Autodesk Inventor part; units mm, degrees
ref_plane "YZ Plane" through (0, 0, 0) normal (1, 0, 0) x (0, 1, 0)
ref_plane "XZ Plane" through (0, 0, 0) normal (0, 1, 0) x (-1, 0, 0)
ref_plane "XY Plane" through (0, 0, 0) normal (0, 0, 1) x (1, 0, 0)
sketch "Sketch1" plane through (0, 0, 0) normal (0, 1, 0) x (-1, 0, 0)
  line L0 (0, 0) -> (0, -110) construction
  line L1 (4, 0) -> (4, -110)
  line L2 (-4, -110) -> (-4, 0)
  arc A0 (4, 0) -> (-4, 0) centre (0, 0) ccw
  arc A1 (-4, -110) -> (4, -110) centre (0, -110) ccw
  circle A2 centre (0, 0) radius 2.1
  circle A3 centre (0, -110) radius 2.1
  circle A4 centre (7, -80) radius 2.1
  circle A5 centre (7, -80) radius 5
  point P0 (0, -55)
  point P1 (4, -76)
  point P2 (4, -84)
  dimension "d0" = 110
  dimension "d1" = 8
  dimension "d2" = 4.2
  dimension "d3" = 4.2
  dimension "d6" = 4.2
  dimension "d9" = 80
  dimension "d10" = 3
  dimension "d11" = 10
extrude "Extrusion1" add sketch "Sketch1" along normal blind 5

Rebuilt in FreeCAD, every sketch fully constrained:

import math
import FreeCAD as App
import Part
import Sketcher
Q = App.Units.Quantity

doc = App.newDocument("Part")
body = doc.addObject("PartDesign::Body", "Body")

# Sketch on XZ plane
sketch1 = doc.addObject("Sketcher::SketchObject", "Sketch")
body.addObject(sketch1)
sketch1.AttachmentSupport = (doc.XZ_Plane, [""])
sketch1.MapMode = "FlatFace"
sketch1.addGeometry([
    Part.LineSegment(App.Vector(-4, -76, 0), App.Vector(-4, 0, 0)),  # 0
    Part.ArcOfCircle(Part.Circle(App.Vector(0, 0, 0), App.Vector(0, 0, 1), 4), math.radians(0), math.radians(180)),  # 1
    Part.LineSegment(App.Vector(4, 0, 0), App.Vector(4, -110, 0)),  # 2
    Part.ArcOfCircle(Part.Circle(App.Vector(0, -110, 0), App.Vector(0, 0, 1), 4), math.radians(180), math.radians(360)),  # 3
    Part.LineSegment(App.Vector(-4, -110, 0), App.Vector(-4, -84, 0)),  # 4
    Part.ArcOfCircle(Part.Circle(App.Vector(-7, -80, 0), App.Vector(0, 0, 1), 5), math.radians(53.130102), math.radians(306.869898)),  # 5
    Part.Circle(App.Vector(0, -110, 0), App.Vector(0, 0, 1), 2.1),  # 6
    Part.Circle(App.Vector(0, 0, 0), App.Vector(0, 0, 1), 2.1),  # 7
    Part.Circle(App.Vector(-7, -80, 0), App.Vector(0, 0, 1), 2.1),  # 8
], False)
sketch1.addConstraint([
    Sketcher.Constraint("Tangent", 0, 2, 1, 2),
    Sketcher.Constraint("Tangent", 1, 1, 2, 1),
    Sketcher.Constraint("Tangent", 2, 2, 3, 2),
    Sketcher.Constraint("Tangent", 3, 1, 4, 1),
    Sketcher.Constraint("Coincident", 4, 2, 5, 2),
    Sketcher.Constraint("Coincident", 5, 1, 0, 1),
    Sketcher.Constraint("Vertical", 0),
    Sketcher.Constraint("Vertical", 2),
    Sketcher.Constraint("Vertical", 4),
    Sketcher.Constraint("Coincident", 1, 3, -1, 1),
    Sketcher.Constraint("Coincident", 7, 3, -1, 1),
    Sketcher.Constraint("Coincident", 6, 3, 3, 3),
    Sketcher.Constraint("Coincident", 8, 3, 5, 3),
    Sketcher.Constraint("Equal", 1, 3),
    Sketcher.Constraint("Equal", 6, 7),
    Sketcher.Constraint("Equal", 7, 8),
    Sketcher.Constraint("Radius", 1, Q("4 mm")),
    Sketcher.Constraint("Radius", 5, Q("5 mm")),
    Sketcher.Constraint("Diameter", 6, Q("4.2 mm")),
    Sketcher.Constraint("DistanceY", 2, 2, 2, 1, Q("110 mm")),
    Sketcher.Constraint("DistanceY", 5, 3, -1, 1, Q("80 mm")),
    Sketcher.Constraint("DistanceX", 5, 3, 0, 2, Q("3 mm")),
])
pad1 = doc.addObject("PartDesign::Pad", "Pad")
body.addObject(pad1)
pad1.Profile = sketch1
pad1.Length = 5
pad1.Reversed = True

doc.recompute()
